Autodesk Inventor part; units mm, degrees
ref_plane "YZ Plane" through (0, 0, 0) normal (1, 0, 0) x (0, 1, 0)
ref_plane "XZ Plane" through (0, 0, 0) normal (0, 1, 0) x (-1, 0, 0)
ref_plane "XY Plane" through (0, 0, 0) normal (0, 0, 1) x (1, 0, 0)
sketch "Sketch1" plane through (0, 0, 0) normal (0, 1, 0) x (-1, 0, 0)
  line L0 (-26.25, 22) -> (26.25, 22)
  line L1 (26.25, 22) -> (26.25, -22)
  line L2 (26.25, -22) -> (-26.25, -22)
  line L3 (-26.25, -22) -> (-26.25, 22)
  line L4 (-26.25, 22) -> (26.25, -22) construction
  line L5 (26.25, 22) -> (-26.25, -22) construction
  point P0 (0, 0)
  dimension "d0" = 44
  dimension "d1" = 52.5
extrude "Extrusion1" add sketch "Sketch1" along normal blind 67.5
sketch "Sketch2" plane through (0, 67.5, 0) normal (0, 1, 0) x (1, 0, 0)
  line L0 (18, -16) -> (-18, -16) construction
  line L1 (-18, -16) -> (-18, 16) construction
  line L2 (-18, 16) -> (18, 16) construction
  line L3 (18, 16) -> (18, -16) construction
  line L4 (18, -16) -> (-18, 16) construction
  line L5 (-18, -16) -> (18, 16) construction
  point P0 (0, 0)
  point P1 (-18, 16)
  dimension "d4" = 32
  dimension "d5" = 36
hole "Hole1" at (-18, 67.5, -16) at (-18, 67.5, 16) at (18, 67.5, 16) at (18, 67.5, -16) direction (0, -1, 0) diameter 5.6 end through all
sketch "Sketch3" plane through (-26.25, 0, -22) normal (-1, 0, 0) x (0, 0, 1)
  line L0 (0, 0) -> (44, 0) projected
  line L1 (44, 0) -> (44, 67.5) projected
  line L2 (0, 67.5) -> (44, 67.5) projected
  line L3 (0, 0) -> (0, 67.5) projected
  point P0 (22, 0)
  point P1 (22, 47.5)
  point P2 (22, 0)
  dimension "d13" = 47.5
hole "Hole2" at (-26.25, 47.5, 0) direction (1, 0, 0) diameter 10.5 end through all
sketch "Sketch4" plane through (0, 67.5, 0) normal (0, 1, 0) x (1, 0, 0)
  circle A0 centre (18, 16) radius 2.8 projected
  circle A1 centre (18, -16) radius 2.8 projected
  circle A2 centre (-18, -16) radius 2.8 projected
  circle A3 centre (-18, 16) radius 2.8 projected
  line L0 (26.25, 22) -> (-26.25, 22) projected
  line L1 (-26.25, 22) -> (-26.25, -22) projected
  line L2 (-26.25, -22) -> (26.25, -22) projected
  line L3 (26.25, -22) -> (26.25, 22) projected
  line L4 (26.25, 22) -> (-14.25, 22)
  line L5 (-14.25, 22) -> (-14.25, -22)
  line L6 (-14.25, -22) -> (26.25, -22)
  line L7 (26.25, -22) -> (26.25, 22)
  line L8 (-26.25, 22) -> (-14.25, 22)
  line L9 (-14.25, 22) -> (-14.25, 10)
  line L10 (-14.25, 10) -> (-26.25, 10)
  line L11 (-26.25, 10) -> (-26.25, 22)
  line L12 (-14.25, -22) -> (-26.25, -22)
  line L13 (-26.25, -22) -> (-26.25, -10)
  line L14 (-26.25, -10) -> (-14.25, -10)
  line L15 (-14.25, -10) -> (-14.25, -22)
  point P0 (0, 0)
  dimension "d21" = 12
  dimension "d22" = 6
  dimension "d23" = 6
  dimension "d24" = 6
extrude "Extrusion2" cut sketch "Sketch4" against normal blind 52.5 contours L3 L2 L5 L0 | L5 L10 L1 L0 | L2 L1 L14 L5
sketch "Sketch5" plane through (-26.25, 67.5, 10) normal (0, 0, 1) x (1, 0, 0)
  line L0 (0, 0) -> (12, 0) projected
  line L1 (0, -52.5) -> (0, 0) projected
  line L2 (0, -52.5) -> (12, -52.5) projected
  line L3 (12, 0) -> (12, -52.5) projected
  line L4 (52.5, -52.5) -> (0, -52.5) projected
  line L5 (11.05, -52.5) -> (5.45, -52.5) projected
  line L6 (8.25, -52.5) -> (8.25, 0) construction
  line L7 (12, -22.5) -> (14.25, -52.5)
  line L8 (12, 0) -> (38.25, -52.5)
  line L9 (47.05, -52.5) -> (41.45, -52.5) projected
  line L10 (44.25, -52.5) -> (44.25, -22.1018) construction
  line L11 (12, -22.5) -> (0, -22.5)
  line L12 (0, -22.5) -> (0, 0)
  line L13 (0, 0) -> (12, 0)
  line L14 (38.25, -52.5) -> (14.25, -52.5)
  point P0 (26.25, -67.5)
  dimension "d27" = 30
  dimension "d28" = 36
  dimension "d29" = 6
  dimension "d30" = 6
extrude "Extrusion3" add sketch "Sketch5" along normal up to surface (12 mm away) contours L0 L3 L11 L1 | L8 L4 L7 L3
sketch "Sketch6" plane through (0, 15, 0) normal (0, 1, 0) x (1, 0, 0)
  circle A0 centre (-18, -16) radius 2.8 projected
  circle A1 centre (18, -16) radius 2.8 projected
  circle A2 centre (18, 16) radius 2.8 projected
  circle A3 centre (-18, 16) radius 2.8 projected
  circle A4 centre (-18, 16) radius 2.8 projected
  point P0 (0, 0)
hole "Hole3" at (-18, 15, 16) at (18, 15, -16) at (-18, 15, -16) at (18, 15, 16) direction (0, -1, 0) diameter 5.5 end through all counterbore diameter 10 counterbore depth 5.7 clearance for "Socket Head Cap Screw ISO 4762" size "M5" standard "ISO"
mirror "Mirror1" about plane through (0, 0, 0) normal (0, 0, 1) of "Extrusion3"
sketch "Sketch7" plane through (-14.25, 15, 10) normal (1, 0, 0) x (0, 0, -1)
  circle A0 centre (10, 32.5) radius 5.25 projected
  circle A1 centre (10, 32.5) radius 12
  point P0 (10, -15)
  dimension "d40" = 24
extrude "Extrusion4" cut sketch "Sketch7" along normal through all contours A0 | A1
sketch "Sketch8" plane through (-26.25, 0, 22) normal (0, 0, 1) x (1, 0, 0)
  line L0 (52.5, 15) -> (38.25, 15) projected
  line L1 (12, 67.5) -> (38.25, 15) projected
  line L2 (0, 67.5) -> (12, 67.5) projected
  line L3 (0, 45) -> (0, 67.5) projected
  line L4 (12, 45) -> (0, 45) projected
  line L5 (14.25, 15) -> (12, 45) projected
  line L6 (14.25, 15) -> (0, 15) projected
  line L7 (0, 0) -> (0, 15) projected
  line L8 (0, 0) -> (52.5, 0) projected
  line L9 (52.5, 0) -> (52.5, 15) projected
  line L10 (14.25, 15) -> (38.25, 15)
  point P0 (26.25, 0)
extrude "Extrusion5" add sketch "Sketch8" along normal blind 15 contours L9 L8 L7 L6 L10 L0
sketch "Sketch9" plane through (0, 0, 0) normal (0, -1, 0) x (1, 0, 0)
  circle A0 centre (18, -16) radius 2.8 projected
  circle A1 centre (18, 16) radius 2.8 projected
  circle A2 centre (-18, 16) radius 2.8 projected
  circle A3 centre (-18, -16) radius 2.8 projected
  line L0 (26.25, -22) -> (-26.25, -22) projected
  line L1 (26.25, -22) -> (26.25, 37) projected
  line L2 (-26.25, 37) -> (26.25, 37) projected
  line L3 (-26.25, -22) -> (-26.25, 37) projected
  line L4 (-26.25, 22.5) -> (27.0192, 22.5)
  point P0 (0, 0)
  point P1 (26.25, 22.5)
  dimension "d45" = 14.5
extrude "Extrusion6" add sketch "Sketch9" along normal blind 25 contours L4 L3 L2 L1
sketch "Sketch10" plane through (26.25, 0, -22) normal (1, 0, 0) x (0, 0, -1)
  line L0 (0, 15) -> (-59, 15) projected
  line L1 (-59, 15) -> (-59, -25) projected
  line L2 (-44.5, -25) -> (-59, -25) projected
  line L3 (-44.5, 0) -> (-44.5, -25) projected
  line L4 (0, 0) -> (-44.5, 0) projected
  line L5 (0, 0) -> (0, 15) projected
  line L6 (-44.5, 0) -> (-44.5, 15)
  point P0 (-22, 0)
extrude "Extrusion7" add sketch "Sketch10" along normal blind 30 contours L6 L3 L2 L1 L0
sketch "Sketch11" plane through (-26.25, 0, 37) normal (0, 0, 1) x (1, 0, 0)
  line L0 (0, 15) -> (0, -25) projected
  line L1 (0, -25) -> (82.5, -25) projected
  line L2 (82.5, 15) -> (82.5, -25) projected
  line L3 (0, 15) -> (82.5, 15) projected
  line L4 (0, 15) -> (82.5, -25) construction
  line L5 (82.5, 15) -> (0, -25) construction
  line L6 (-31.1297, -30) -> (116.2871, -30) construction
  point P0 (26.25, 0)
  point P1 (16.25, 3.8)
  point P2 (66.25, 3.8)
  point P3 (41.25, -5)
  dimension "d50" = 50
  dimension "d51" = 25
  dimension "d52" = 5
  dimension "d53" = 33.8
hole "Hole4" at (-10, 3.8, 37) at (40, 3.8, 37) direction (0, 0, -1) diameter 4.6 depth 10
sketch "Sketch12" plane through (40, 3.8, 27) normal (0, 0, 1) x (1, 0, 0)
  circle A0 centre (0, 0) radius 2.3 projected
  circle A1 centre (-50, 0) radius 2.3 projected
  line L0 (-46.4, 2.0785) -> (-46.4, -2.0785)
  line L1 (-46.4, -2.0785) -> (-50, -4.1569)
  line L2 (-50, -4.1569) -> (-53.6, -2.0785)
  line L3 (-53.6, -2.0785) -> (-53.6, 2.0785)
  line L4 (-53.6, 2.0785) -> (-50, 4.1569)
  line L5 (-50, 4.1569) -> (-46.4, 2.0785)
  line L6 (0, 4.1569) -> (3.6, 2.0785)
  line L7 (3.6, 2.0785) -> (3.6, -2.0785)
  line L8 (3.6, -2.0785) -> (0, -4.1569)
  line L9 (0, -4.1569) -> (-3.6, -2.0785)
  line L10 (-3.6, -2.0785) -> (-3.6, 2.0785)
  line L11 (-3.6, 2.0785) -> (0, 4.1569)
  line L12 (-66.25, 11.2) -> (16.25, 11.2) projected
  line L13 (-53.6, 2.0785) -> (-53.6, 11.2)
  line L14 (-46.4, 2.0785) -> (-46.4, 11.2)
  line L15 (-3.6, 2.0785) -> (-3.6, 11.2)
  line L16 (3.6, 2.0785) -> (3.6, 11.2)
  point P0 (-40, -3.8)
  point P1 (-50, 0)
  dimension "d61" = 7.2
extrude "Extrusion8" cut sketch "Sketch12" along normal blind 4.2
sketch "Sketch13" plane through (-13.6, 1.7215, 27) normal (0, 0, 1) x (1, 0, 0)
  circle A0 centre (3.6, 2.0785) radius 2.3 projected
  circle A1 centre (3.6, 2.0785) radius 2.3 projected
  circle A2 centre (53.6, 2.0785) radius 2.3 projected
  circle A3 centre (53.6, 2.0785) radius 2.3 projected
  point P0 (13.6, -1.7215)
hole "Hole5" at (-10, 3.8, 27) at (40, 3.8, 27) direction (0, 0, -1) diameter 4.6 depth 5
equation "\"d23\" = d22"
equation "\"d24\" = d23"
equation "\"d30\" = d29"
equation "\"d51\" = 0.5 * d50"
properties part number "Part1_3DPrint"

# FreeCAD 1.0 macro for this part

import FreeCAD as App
import Part
import Sketcher
from FreeCAD import Vector
Q = App.Units.Quantity


def add_polygon(sketch, points):
    """Adds a closed chain of lines whose ends are joined by coincident constraints."""
    first, n = sketch.GeometryCount, len(points)
    for a, b in zip(points, points[1:] + points[:1]):
        sketch.addGeometry(Part.LineSegment(App.Vector(*a, 0), App.Vector(*b, 0)), False)
    for i in range(n):
        sketch.addConstraint(Sketcher.Constraint("Coincident", first + i, 2, first + (i + 1) % n, 1))

doc = App.newDocument("Part")
params = doc.addObject("Spreadsheet::Sheet", "Params")
for row, (alias, value) in enumerate([
    ("sketch1_height", "44 mm"),
    ("sketch1_width", "52.5 mm"),
    ("pad1_length", "67.5 mm"),
    ("sketch2_diameter", "5.6 mm"),
    ("hole_diameter", "5.6 mm"),
    ("sketch3_diameter", "10.5 mm"),
    ("hole2_diameter", "10.5 mm"),
    ("sketch4_width", "12 mm"),
    ("sketch4_diameter", "5.6 mm"),
    ("sketch4_height", "44 mm"),
    ("sketch4_width2", "52.5 mm"),
    ("pocket1_length", "52.5 mm"),
    ("sketch5_width", "12 mm"),
    ("sketch5_width2", "24 mm"),
    ("sketch5_height", "22.5 mm"),
    ("pad2_length", "12 mm"),
    ("sketch6_diameter", "5.5 mm"),
    ("hole3_diameter", "5.5 mm"),
    ("hole3_cbore_diameter", "10 mm"),
    ("hole3_cbore_depth", "5.7 mm"),
    ("sketch7_diameter", "24 mm"),
    ("sketch8_height", "15 mm"),
    ("sketch8_width", "52.5 mm"),
    ("pad3_length", "15 mm"),
    ("sketch9_height", "14.5 mm"),
    ("sketch9_width", "52.5 mm"),
    ("pad4_length", "25 mm"),
    ("sketch10_width", "40 mm"),
    ("sketch10_height", "14.5 mm"),
    ("pad5_length", "30 mm"),
    ("sketch11_diameter", "4.6 mm"),
    ("hole4_diameter", "4.6 mm"),
    ("hole4_depth", "10 mm"),
    ("sketch12_width", "7.2 mm"),
    ("sketch12_diameter", "4.6 mm"),
    ("pocket3_length", "4.2 mm"),
    ("sketch13_diameter", "4.6 mm"),
    ("hole5_diameter", "4.6 mm"),
    ("hole5_depth", "5 mm"),
], start=1):
    params.set(f"A{row}", alias)
    params.set(f"B{row}", "=" + value)
    params.setAlias(f"B{row}", alias)

body = doc.addObject("PartDesign::Body", "Body")

sketch1 = body.newObject("Sketcher::SketchObject", "Sketch")
sketch1.AttachmentSupport = (doc.getObject("XZ_Plane"), [""])
sketch1.MapMode = "FlatFace"
add_polygon(sketch1, [(-26.25, 22), (26.25, 22), (26.25, -22), (-26.25, -22)])
sketch1.addConstraint([
    Sketcher.Constraint("Horizontal", 0),
    Sketcher.Constraint("Vertical", 1),
    Sketcher.Constraint("Horizontal", 2),
    Sketcher.Constraint("Vertical", 3),
    Sketcher.Constraint("Symmetric", 0, 2, 2, 2, -1, 1),
    Sketcher.Constraint("DistanceY", 1, 2, 1, 1, 44.0),
    Sketcher.Constraint("DistanceX", 0, 1, 0, 2, 52.5),
])
sketch1.setExpression("Constraints[9]", "Params.sketch1_height")
sketch1.setExpression("Constraints[10]", "Params.sketch1_width")
pad1 = body.newObject("PartDesign::Pad", "Pad")
pad1.Profile = sketch1
pad1.setExpression("Length", "Params.pad1_length")
pad1.Reversed = True

sketch2 = body.newObject("Sketcher::SketchObject", "Sketch001")
sketch2.AttachmentSupport = (doc.getObject("XZ_Plane"), [""])
sketch2.MapMode = "FlatFace"
sketch2.AttachmentOffset = App.Placement(Vector(0, 0, -67.5), App.Rotation())
sketch2.addGeometry([
    Part.Circle(Vector(-18, -16, 0), Vector(0, 0, 1), 2.8),
    Part.Circle(Vector(-18, 16, 0), Vector(0, 0, 1), 2.8),
    Part.Circle(Vector(18, 16, 0), Vector(0, 0, 1), 2.8),
    Part.Circle(Vector(18, -16, 0), Vector(0, 0, 1), 2.8),
], False)
sketch2.addConstraint([
    Sketcher.Constraint("Equal", 0, 1),
    Sketcher.Constraint("Equal", 1, 2),
    Sketcher.Constraint("Equal", 2, 3),
    Sketcher.Constraint("Symmetric", 0, 3, 2, 3, -1, 1),
    Sketcher.Constraint("Symmetric", 1, 3, 3, 3, -1, 1),
    Sketcher.Constraint("Symmetric", 1, 3, 2, 3, -2),
    Sketcher.Constraint("Diameter", 0, 5.6),
    Sketcher.Constraint("DistanceX", 0, 3, -1, 1, 18.0),
    Sketcher.Constraint("DistanceY", 0, 3, -1, 1, 16.0),
])
sketch2.setExpression("Constraints[6]", "Params.sketch2_diameter")
doc.recompute()
hole = body.newObject("PartDesign::Hole", "Hole")
hole.Profile = sketch2
hole.ThreadType = "None"
hole.setExpression("Diameter", "Params.hole_diameter")
hole.DepthType = "ThroughAll"
hole.Reversed = True

sketch3 = body.newObject("Sketcher::SketchObject", "Sketch002")
sketch3.AttachmentSupport = (doc.getObject("YZ_Plane"), [""])
sketch3.MapMode = "FlatFace"
sketch3.AttachmentOffset = App.Placement(Vector(0, 0, -26.25), App.Rotation())
sketch3.addGeometry(Part.Circle(Vector(47.5, 0, 0), Vector(0, 0, 1), 5.25), False)
sketch3.addConstraint([
    Sketcher.Constraint("PointOnObject", 0, 3, -1),
    Sketcher.Constraint("Diameter", 0, 10.5),
    Sketcher.Constraint("DistanceX", -1, 1, 0, 3, 47.5),
])
sketch3.setExpression("Constraints[1]", "Params.sketch3_diameter")
doc.recompute()
hole2 = body.newObject("PartDesign::Hole", "Hole001")
hole2.Profile = sketch3
hole2.ThreadType = "None"
hole2.setExpression("Diameter", "Params.hole2_diameter")
hole2.DepthType = "ThroughAll"
hole2.Reversed = True

sketch4 = body.newObject("Sketcher::SketchObject", "Sketch003")
sketch4.AttachmentSupport = (doc.getObject("XZ_Plane"), [""])
sketch4.MapMode = "FlatFace"
sketch4.AttachmentOffset = App.Placement(Vector(0, 0, -67.5), App.Rotation())
add_polygon(sketch4, [(26.25, 22), (26.25, -22), (-26.25, -22), (-26.25, -10), (-14.25, -10), (-14.25, 10), (-26.25, 10), (-26.25, 22)])
sketch4.addGeometry(Part.Circle(Vector(18, 16, 0), Vector(0, 0, 1), 2.8), False)
sketch4.addGeometry(Part.Circle(Vector(18, -16, 0), Vector(0, 0, 1), 2.8), False)
sketch4.addGeometry(Part.Circle(Vector(-18, 16, 0), Vector(0, 0, 1), 2.8), False)
sketch4.addGeometry(Part.Circle(Vector(-18, -16, 0), Vector(0, 0, 1), 2.8), False)
sketch4.addConstraint([
    Sketcher.Constraint("Vertical", 0),
    Sketcher.Constraint("Horizontal", 1),
    Sketcher.Constraint("Vertical", 2),
    Sketcher.Constraint("Horizontal", 3),
    Sketcher.Constraint("Vertical", 4),
    Sketcher.Constraint("Horizontal", 5),
    Sketcher.Constraint("Vertical", 6),
    Sketcher.Constraint("Horizontal", 7),
    Sketcher.Constraint("Equal", 8, 9),
    Sketcher.Constraint("Equal", 9, 10),
    Sketcher.Constraint("Equal", 10, 11),
    Sketcher.Constraint("Symmetric", 9, 3, 10, 3, -1, 1),
    Sketcher.Constraint("Symmetric", 8, 3, 11, 3, -1, 1),
    Sketcher.Constraint("Symmetric", 0, 2, 6, 2, -1, 1),
    Sketcher.Constraint("Symmetric", 8, 3, 10, 3, -2),
    Sketcher.Constraint("Symmetric", 2, 2, 5, 2, -1),
    Sketcher.Constraint("Equal", 5, 2),
    Sketcher.Constraint("DistanceX", 3, 1, 3, 2, 12.0),
    Sketcher.Constraint("DistanceY", 0, 2, 9, 3, 6.0),
    Sketcher.Constraint("Diameter", 8, 5.6),
    Sketcher.Constraint("DistanceY", 0, 2, 0, 1, 44.0),
    Sketcher.Constraint("DistanceX", 1, 2, 1, 1, 52.5),
    Sketcher.Constraint("DistanceX", -1, 1, 8, 3, 18.0),
])
sketch4.setExpression("Constraints[25]", "Params.sketch4_width")
sketch4.setExpression("Constraints[27]", "Params.sketch4_diameter")
sketch4.setExpression("Constraints[28]", "Params.sketch4_height")
sketch4.setExpression("Constraints[29]", "Params.sketch4_width2")
pocket1 = body.newObject("PartDesign::Pocket", "Pocket")
pocket1.Profile = sketch4
pocket1.setExpression("Length", "Params.pocket1_length")
pocket1.Reversed = True

sketch5 = body.newObject("Sketcher::SketchObject", "Sketch004")
sketch5.AttachmentSupport = (doc.getObject("XY_Plane"), [""])
sketch5.MapMode = "FlatFace"
sketch5.AttachmentOffset = App.Placement(Vector(0, 0, 10), App.Rotation())
add_polygon(sketch5, [(-14.25, 67.5), (-26.25, 67.5), (-26.25, 45), (-14.25, 45), (-12, 15), (12, 15)])
sketch5.addConstraint([
    Sketcher.Constraint("Horizontal", 0),
    Sketcher.Constraint("Vertical", 1),
    Sketcher.Constraint("Horizontal", 2),
    Sketcher.Constraint("Horizontal", 4),
    Sketcher.Constraint("Vertical", 2, 2, 5, 2),
    Sketcher.Constraint("DistanceY", 3, 2, 2, 2, 30.0),
    Sketcher.Constraint("DistanceX", 0, 2, 0, 1, 12.0),
    Sketcher.Constraint("DistanceX", 4, 1, 4, 2, 24.0),
    Sketcher.Constraint("DistanceY", 1, 2, 1, 1, 22.5),
    Sketcher.Constraint("DistanceY", -1, 1, 1, 2, 45.0),
    Sketcher.Constraint("DistanceX", 3, 2, -1, 1, 12.0),
    Sketcher.Constraint("Angle", 3, Q("-85.7108 deg")),
])
sketch5.setExpression("Constraints[12]", "Params.sketch5_width")
sketch5.setExpression("Constraints[13]", "Params.sketch5_width2")
sketch5.setExpression("Constraints[14]", "Params.sketch5_height")
pad2 = body.newObject("PartDesign::Pad", "Pad001")
pad2.Profile = sketch5
pad2.setExpression("Length", "Params.pad2_length")

sketch6 = body.newObject("Sketcher::SketchObject", "Sketch005")
sketch6.AttachmentSupport = (doc.getObject("XZ_Plane"), [""])
sketch6.MapMode = "FlatFace"
sketch6.AttachmentOffset = App.Placement(Vector(0, 0, -15), App.Rotation())
sketch6.addGeometry([
    Part.Circle(Vector(-18, 16, 0), Vector(0, 0, 1), 2.75),
    Part.Circle(Vector(18, -16, 0), Vector(0, 0, 1), 2.75),
    Part.Circle(Vector(-18, -16, 0), Vector(0, 0, 1), 2.75),
    Part.Circle(Vector(18, 16, 0), Vector(0, 0, 1), 2.75),
], False)
sketch6.addConstraint([
    Sketcher.Constraint("Equal", 0, 1),
    Sketcher.Constraint("Equal", 1, 2),
    Sketcher.Constraint("Equal", 2, 3),
    Sketcher.Constraint("Symmetric", 0, 3, 1, 3, -1, 1),
    Sketcher.Constraint("Symmetric", 2, 3, 3, 3, -1, 1),
    Sketcher.Constraint("Symmetric", 1, 3, 2, 3, -2),
    Sketcher.Constraint("Diameter", 0, 5.5),
    Sketcher.Constraint("DistanceX", 0, 3, -1, 1, 18.0),
    Sketcher.Constraint("DistanceY", -1, 1, 0, 3, 16.0),
])
sketch6.setExpression("Constraints[6]", "Params.sketch6_diameter")
doc.recompute()
hole3 = body.newObject("PartDesign::Hole", "Hole002")
hole3.Profile = sketch6
hole3.ThreadType = "None"
hole3.setExpression("Diameter", "Params.hole3_diameter")
hole3.DepthType = "ThroughAll"
hole3.HoleCutType = "Counterbore"
hole3.setExpression("HoleCutDiameter", "Params.hole3_cbore_diameter")
hole3.setExpression("HoleCutDepth", "Params.hole3_cbore_depth")
hole3.Reversed = True
doc.recompute()

mirrored = body.newObject("PartDesign::Mirrored", "Mirrored")
mirrored.Originals = [pad2]
mirrored.MirrorPlane = (doc.getObject("XY_Plane"), [""])
body.Tip = mirrored

sketch7 = body.newObject("Sketcher::SketchObject", "Sketch006")
sketch7.AttachmentSupport = (doc.getObject("YZ_Plane"), [""])
sketch7.MapMode = "FlatFace"
sketch7.AttachmentOffset = App.Placement(Vector(0, 0, -14.25), App.Rotation())
sketch7.addGeometry(Part.Circle(Vector(47.5, 0, 0), Vector(0, 0, 1), 12), False)
sketch7.addConstraint([
    Sketcher.Constraint("PointOnObject", 0, 3, -1),
    Sketcher.Constraint("Diameter", 0, 24.0),
    Sketcher.Constraint("DistanceX", -1, 1, 0, 3, 47.5),
])
sketch7.setExpression("Constraints[1]", "Params.sketch7_diameter")
pocket2 = body.newObject("PartDesign::Pocket", "Pocket001")
pocket2.Profile = sketch7
pocket2.Type = "ThroughAll"
pocket2.Reversed = True

sketch8 = body.newObject("Sketcher::SketchObject", "Sketch007")
sketch8.AttachmentSupport = (doc.getObject("XY_Plane"), [""])
sketch8.MapMode = "FlatFace"
sketch8.AttachmentOffset = App.Placement(Vector(0, 0, 22), App.Rotation())
add_polygon(sketch8, [(26.25, 0), (26.25, 15), (-26.25, 15), (-26.25, 0)])
sketch8.addConstraint([
    Sketcher.Constraint("Vertical", 0),
    Sketcher.Constraint("Horizontal", 1),
    Sketcher.Constraint("Vertical", 2),
    Sketcher.Constraint("Horizontal", 3),
    Sketcher.Constraint("Symmetric", 2, 2, 3, 2, -1, 1),
    Sketcher.Constraint("DistanceY", 0, 1, 0, 2, 15.0),
    Sketcher.Constraint("DistanceX", 1, 2, 1, 1, 52.5),
])
sketch8.setExpression("Constraints[9]", "Params.sketch8_height")
sketch8.setExpression("Constraints[10]", "Params.sketch8_width")
pad3 = body.newObject("PartDesign::Pad", "Pad002")
pad3.Profile = sketch8
pad3.setExpression("Length", "Params.pad3_length")

sketch9 = body.newObject("Sketcher::SketchObject", "Sketch008")
sketch9.AttachmentSupport = (doc.getObject("XZ_Plane"), [""])
sketch9.MapMode = "FlatFace"
add_polygon(sketch9, [(-26.25, 22.5), (26.25, 22.5), (26.25, 37), (-26.25, 37)])
sketch9.addConstraint([
    Sketcher.Constraint("Horizontal", 0),
    Sketcher.Constraint("Vertical", 1),
    Sketcher.Constraint("Horizontal", 2),
    Sketcher.Constraint("Vertical", 3),
    Sketcher.Constraint("DistanceY", 1, 1, 1, 2, 14.5),
    Sketcher.Constraint("DistanceX", 0, 1, 0, 2, 52.5),
    Sketcher.Constraint("DistanceY", -1, 1, 1, 2, 37.0),
    Sketcher.Constraint("DistanceX", -1, 1, 0, 2, 26.25),
])
sketch9.setExpression("Constraints[8]", "Params.sketch9_height")
sketch9.setExpression("Constraints[9]", "Params.sketch9_width")
pad4 = body.newObject("PartDesign::Pad", "Pad003")
pad4.Profile = sketch9
pad4.setExpression("Length", "Params.pad4_length")

sketch10 = body.newObject("Sketcher::SketchObject", "Sketch009")
sketch10.AttachmentSupport = (doc.getObject("YZ_Plane"), [""])
sketch10.MapMode = "FlatFace"
sketch10.AttachmentOffset = App.Placement(Vector(0, 0, 26.25), App.Rotation())
add_polygon(sketch10, [(-25, 22.5), (15, 22.5), (15, 37), (-25, 37)])
sketch10.addConstraint([
    Sketcher.Constraint("Horizontal", 0),
    Sketcher.Constraint("Vertical", 1),
    Sketcher.Constraint("Horizontal", 2),
    Sketcher.Constraint("Vertical", 3),
    Sketcher.Constraint("DistanceX", 0, 1, 0, 2, 40.0),
    Sketcher.Constraint("DistanceY", 1, 1, 1, 2, 14.5),
    Sketcher.Constraint("DistanceX", -1, 1, 0, 2, 15.0),
    Sketcher.Constraint("DistanceY", -1, 1, 1, 2, 37.0),
])
sketch10.setExpression("Constraints[8]", "Params.sketch10_width")
sketch10.setExpression("Constraints[9]", "Params.sketch10_height")
pad5 = body.newObject("PartDesign::Pad", "Pad004")
pad5.Profile = sketch10
pad5.setExpression("Length", "Params.pad5_length")

sketch11 = body.newObject("Sketcher::SketchObject", "Sketch010")
sketch11.AttachmentSupport = (doc.getObject("XY_Plane"), [""])
sketch11.MapMode = "FlatFace"
sketch11.AttachmentOffset = App.Placement(Vector(0, 0, 37), App.Rotation())
sketch11.addGeometry([
    Part.Circle(Vector(-10, 3.8, 0), Vector(0, 0, 1), 2.3),
    Part.Circle(Vector(40, 3.8, 0), Vector(0, 0, 1), 2.3),
], False)
sketch11.addConstraint([
    Sketcher.Constraint("Equal", 0, 1),
    Sketcher.Constraint("Horizontal", 0, 3, 1, 3),
    Sketcher.Constraint("Diameter", 0, 4.6),
    Sketcher.Constraint("DistanceX", 0, 3, -1, 1, 10.0),
    Sketcher.Constraint("DistanceX", -1, 1, 1, 3, 40.0),
    Sketcher.Constraint("DistanceY", -1, 1, 0, 3, 3.8),
])
sketch11.setExpression("Constraints[2]", "Params.sketch11_diameter")
doc.recompute()
hole4 = body.newObject("PartDesign::Hole", "Hole003")
hole4.Profile = sketch11
hole4.ThreadType = "None"
hole4.setExpression("Diameter", "Params.hole4_diameter")
hole4.DepthType = "Dimension"
hole4.setExpression("Depth", "Params.hole4_depth")
hole4.DrillPoint = "Flat"

sketch12 = body.newObject("Sketcher::SketchObject", "Sketch011")
sketch12.AttachmentSupport = (doc.getObject("XY_Plane"), [""])
sketch12.MapMode = "FlatFace"
sketch12.AttachmentOffset = App.Placement(Vector(0, 0, 27), App.Rotation())
add_polygon(sketch12, [(43.6, 15), (36.4, 15), (36.4, 1.7215), (40, -0.3569), (43.6, 1.7215)])
sketch12.addGeometry(Part.Circle(Vector(40, 3.8, 0), Vector(0, 0, 1), 2.3), False)
add_polygon(sketch12, [(-6.4, 1.7215), (-6.4, 15), (-13.6, 15), (-13.6, 1.7215), (-10, -0.3569)])
sketch12.addGeometry(Part.Circle(Vector(-10, 3.8, 0), Vector(0, 0, 1), 2.3), False)
sketch12.addConstraint([
    Sketcher.Constraint("Horizontal", 0),
    Sketcher.Constraint("Vertical", 1),
    Sketcher.Constraint("Vertical", 4),
    Sketcher.Constraint("Vertical", 6),
    Sketcher.Constraint("Horizontal", 7),
    Sketcher.Constraint("Vertical", 8),
    Sketcher.Constraint("Equal", 5, 11),
    Sketcher.Constraint("Parallel", 2, 9),
    Sketcher.Constraint("Parallel", 3, 10),
    Sketcher.Constraint("Horizontal", 5, 3, 11, 3),
    Sketcher.Constraint("Horizontal", 1, 2, 3, 2),
    Sketcher.Constraint("Horizontal", 4, 2, 6, 2),
    Sketcher.Constraint("Horizontal", 3, 2, 8, 2),
    Sketcher.Constraint("Horizontal", 2, 2, 9, 2),
    Sketcher.Constraint("Horizontal", 8, 2, 10, 2),
    Sketcher.Constraint("Vertical", 5, 3, 2, 2),
    Sketcher.Constraint("Vertical", 11, 3, 9, 2),
    Sketcher.Constraint("Equal", 2, 3),
    Sketcher.Constraint("DistanceX", 0, 2, 0, 1, 7.2),
    Sketcher.Constraint("Diameter", 5, 4.6),
    Sketcher.Constraint("Angle", 2, Q("-29.9993 deg")),
    Sketcher.Constraint("DistanceX", -1, 1, 5, 3, 40.0),
    Sketcher.Constraint("DistanceX", 11, 3, -1, 1, 10.0),
    Sketcher.Constraint("DistanceY", -1, 1, 0, 2, 15.0),
    Sketcher.Constraint("DistanceY", -1, 1, 5, 3, 3.8),
    Sketcher.Constraint("DistanceY", 1, 2, 1, 1, 13.2785),
])
sketch12.setExpression("Constraints[28]", "Params.sketch12_width")
sketch12.setExpression("Constraints[29]", "Params.sketch12_diameter")
pocket3 = body.newObject("PartDesign::Pocket", "Pocket002")
pocket3.Profile = sketch12
pocket3.setExpression("Length", "Params.pocket3_length")
pocket3.Reversed = True

sketch13 = body.newObject("Sketcher::SketchObject", "Sketch012")
sketch13.AttachmentSupport = (doc.getObject("XY_Plane"), [""])
sketch13.MapMode = "FlatFace"
sketch13.AttachmentOffset = App.Placement(Vector(0, 0, 27), App.Rotation())
sketch13.addGeometry([
    Part.Circle(Vector(-10, 3.8, 0), Vector(0, 0, 1), 2.3),
    Part.Circle(Vector(40, 3.8, 0), Vector(0, 0, 1), 2.3),
], False)
sketch13.addConstraint([
    Sketcher.Constraint("Equal", 0, 1),
    Sketcher.Constraint("Horizontal", 0, 3, 1, 3),
    Sketcher.Constraint("Diameter", 0, 4.6),
    Sketcher.Constraint("DistanceX", 0, 3, -1, 1, 10.0),
    Sketcher.Constraint("DistanceX", -1, 1, 1, 3, 40.0),
    Sketcher.Constraint("DistanceY", -1, 1, 0, 3, 3.8),
])
sketch13.setExpression("Constraints[2]", "Params.sketch13_diameter")
doc.recompute()
hole5 = body.newObject("PartDesign::Hole", "Hole004")
hole5.Profile = sketch13
hole5.ThreadType = "None"
hole5.setExpression("Diameter", "Params.hole5_diameter")
hole5.DepthType = "Dimension"
hole5.setExpression("Depth", "Params.hole5_depth")
hole5.DrillPoint = "Flat"

doc.recompute()
